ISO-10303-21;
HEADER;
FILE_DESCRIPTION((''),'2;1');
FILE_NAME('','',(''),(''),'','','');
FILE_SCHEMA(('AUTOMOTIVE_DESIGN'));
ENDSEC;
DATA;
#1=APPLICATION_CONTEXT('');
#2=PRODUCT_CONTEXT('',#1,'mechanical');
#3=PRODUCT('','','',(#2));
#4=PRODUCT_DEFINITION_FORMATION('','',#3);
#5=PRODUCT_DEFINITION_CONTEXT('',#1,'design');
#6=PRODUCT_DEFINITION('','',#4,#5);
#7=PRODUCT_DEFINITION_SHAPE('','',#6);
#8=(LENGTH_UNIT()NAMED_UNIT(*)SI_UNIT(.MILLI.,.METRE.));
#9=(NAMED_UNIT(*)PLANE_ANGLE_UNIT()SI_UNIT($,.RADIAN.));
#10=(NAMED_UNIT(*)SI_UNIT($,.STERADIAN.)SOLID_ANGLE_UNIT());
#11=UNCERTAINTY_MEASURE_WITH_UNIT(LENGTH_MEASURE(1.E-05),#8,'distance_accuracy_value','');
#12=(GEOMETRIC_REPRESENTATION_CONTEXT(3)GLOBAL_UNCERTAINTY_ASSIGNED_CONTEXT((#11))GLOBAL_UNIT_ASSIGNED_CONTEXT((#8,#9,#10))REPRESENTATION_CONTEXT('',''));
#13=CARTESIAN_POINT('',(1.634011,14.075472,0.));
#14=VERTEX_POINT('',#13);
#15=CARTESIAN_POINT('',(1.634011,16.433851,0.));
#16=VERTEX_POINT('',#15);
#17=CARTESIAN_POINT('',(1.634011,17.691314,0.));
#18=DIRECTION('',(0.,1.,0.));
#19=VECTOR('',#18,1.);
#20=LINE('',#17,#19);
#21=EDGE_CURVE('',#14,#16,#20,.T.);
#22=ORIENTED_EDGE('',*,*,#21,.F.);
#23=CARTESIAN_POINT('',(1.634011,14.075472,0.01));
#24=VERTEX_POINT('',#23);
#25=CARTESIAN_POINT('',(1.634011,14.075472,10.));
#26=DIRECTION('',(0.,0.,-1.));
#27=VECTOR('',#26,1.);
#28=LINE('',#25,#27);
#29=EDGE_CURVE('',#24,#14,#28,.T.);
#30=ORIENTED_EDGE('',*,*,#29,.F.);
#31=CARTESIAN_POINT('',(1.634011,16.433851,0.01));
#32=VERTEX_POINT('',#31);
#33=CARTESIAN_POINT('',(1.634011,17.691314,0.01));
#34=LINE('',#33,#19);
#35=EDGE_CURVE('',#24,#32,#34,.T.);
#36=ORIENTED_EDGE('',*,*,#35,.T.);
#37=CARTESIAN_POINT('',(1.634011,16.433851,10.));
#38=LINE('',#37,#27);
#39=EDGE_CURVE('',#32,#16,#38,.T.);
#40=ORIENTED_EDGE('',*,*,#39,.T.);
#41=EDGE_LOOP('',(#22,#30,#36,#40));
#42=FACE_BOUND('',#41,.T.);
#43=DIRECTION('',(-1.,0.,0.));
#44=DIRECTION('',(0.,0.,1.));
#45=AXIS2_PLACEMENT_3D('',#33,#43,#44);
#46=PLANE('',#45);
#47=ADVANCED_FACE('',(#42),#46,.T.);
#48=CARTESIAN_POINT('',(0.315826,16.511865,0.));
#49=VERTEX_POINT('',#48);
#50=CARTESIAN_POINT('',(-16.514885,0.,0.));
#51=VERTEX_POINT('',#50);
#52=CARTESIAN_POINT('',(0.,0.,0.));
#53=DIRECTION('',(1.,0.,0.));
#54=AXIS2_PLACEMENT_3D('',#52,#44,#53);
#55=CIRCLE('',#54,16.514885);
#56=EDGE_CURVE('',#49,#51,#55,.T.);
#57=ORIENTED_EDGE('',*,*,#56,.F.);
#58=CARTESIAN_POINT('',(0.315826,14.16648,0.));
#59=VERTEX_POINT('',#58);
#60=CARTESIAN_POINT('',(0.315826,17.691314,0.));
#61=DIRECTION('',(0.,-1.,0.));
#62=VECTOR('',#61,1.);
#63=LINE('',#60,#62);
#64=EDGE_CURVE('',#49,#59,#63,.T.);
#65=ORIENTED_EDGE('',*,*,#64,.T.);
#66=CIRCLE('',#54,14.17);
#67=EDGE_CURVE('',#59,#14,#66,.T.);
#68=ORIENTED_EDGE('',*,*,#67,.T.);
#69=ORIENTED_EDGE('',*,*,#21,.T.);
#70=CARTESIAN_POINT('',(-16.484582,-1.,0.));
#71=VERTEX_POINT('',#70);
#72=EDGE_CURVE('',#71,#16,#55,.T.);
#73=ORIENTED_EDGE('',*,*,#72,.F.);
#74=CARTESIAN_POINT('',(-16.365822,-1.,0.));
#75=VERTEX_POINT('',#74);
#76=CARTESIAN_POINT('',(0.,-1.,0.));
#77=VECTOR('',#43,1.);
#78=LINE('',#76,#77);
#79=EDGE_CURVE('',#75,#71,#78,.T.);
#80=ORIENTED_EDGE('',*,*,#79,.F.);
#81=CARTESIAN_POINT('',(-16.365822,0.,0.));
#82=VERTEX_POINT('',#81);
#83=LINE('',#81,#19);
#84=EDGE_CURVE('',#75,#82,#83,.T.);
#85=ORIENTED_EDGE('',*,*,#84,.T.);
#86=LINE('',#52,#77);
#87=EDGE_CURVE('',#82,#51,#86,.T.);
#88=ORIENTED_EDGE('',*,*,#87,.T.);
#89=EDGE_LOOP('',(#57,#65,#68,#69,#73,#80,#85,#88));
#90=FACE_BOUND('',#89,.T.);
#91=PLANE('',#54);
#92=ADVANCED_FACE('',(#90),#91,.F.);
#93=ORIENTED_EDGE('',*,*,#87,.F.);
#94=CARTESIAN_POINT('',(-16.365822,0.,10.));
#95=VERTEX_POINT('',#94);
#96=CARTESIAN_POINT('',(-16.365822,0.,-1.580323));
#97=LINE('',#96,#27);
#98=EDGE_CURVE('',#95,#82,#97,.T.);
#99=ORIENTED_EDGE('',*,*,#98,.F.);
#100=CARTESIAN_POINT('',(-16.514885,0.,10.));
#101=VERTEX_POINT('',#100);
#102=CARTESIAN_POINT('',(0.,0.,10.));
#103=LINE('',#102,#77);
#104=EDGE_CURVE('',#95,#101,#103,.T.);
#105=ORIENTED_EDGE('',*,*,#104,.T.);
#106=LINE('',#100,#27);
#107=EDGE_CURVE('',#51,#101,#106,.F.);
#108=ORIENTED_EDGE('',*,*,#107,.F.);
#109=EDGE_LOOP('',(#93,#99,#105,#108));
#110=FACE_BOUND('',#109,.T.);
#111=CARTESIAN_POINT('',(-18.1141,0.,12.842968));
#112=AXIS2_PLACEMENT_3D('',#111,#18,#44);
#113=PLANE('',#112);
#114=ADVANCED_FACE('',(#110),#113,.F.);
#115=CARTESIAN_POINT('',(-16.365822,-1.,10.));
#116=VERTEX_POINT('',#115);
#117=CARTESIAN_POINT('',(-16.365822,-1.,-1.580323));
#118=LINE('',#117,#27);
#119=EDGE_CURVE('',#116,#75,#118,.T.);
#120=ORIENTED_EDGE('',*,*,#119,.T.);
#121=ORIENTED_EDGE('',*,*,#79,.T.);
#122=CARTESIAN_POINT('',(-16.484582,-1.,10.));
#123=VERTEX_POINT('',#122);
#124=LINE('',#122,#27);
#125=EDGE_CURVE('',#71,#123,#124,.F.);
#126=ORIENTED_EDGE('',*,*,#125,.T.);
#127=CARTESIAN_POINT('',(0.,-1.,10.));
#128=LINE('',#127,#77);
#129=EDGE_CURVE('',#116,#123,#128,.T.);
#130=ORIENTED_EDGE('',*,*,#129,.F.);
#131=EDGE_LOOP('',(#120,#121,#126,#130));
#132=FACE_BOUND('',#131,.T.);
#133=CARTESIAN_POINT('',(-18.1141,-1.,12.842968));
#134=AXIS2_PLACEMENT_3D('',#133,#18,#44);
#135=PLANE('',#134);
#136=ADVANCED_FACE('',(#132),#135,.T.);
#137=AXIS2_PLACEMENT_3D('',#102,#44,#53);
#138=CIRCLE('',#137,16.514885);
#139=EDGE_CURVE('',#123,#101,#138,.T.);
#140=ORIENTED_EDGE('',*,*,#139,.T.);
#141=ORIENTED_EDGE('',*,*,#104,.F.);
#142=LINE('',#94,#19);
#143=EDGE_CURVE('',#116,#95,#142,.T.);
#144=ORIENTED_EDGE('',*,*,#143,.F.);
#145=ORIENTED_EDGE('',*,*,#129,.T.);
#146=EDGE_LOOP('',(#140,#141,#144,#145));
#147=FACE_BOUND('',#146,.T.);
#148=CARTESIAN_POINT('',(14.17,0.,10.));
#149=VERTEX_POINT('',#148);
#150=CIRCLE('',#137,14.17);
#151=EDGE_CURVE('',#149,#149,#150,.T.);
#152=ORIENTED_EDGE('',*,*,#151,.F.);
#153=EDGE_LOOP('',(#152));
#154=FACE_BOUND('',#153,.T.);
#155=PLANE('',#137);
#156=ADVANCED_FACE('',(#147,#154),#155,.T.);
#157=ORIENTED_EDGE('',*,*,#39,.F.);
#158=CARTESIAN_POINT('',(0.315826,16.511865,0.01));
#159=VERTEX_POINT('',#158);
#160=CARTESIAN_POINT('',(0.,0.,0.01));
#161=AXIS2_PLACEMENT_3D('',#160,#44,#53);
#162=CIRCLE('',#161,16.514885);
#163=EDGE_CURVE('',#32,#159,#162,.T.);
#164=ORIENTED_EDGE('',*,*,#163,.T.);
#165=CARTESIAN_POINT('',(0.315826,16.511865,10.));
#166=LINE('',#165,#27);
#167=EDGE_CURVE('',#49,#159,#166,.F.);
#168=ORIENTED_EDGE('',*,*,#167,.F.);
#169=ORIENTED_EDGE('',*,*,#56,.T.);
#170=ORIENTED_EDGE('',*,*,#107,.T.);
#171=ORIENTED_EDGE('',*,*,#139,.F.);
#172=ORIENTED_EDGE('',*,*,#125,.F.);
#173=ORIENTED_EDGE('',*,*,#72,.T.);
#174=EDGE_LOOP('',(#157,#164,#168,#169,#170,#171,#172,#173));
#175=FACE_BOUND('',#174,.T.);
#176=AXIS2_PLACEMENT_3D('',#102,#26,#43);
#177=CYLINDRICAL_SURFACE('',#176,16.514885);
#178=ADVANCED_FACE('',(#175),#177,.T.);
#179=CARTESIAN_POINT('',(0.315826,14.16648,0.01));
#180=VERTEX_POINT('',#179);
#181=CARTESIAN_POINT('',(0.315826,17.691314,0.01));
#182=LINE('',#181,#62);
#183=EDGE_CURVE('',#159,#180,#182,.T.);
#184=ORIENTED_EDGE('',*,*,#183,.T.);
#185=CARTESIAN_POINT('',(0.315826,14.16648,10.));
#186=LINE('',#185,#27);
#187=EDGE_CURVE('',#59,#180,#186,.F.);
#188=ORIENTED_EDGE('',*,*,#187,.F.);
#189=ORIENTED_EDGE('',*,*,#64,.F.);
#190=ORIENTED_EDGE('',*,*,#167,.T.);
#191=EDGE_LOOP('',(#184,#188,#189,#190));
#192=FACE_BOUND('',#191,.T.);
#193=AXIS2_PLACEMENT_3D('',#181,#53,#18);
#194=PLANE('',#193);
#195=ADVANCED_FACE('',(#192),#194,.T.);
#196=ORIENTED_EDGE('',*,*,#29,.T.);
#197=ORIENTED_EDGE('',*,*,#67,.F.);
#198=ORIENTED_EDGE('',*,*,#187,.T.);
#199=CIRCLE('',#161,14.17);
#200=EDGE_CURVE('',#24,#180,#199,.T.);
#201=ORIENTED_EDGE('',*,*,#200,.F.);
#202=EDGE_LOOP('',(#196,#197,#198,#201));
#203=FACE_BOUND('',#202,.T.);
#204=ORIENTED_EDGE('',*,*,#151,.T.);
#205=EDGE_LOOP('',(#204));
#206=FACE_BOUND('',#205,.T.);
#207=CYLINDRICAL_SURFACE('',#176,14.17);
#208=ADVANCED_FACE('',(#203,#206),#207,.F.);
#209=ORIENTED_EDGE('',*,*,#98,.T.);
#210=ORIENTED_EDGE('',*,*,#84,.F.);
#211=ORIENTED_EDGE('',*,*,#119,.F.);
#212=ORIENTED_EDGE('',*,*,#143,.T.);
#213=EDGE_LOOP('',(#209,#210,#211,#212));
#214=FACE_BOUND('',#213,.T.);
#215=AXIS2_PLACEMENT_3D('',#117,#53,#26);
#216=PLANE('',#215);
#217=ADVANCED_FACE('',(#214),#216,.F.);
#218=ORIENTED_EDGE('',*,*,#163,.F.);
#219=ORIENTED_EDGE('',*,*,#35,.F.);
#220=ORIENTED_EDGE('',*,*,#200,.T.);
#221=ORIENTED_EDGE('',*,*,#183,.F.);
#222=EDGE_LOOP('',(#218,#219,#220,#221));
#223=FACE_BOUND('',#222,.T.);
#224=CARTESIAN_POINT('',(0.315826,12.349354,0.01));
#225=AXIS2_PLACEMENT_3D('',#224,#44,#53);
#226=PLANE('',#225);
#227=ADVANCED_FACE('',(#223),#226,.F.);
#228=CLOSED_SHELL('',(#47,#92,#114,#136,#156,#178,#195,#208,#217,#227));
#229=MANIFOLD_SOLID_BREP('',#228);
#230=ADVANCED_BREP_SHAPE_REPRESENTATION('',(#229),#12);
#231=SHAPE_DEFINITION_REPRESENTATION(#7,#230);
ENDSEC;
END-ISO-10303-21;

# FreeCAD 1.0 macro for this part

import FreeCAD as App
import Part
import Sketcher
from FreeCAD import Vector


def add_polygon(sketch, points):
    """Adds a closed chain of lines whose ends are joined by coincident constraints."""
    first, n = sketch.GeometryCount, len(points)
    for a, b in zip(points, points[1:] + points[:1]):
        sketch.addGeometry(Part.LineSegment(App.Vector(*a, 0), App.Vector(*b, 0)), False)
    for i in range(n):
        sketch.addConstraint(Sketcher.Constraint("Coincident", first + i, 2, first + (i + 1) % n, 1))

doc = App.newDocument("Part")
params = doc.addObject("Spreadsheet::Sheet", "Params")
for row, (alias, value) in enumerate([
    ("sketch1_diameter", "28.34 mm"),
    ("pad1_length", "10 mm"),
    ("pocket1_length", "1 mm"),
    ("pocket2_length", "0.01 mm"),
], start=1):
    params.set(f"A{row}", alias)
    params.set(f"B{row}", "=" + value)
    params.setAlias(f"B{row}", alias)

body = doc.addObject("PartDesign::Body", "Body")

sketch1 = doc.addObject("Sketcher::SketchObject", "Sketch")
body.addObject(sketch1)
sketch1.AttachmentSupport = (doc.XY_Plane, [""])
sketch1.MapMode = "FlatFace"
sketch1.addGeometry([
    Part.Circle(Vector(0, 0, 0), Vector(0, 0, 1), 17),
    Part.Circle(Vector(0, 0, 0), Vector(0, 0, 1), 14),
], False)
sketch1.addConstraint([
    Sketcher.Constraint("Coincident", 0, 3, -1, 1),
    Sketcher.Constraint("Coincident", 1, 3, -1, 1),
    Sketcher.Constraint("Diameter", 1, 28.34),
    Sketcher.Constraint("Diameter", 0, 33.029771),
])
sketch1.setExpression("Constraints[2]", "Params.sketch1_diameter")
pad1 = doc.addObject("PartDesign::Pad", "Pad")
body.addObject(pad1)
pad1.Profile = sketch1
pad1.setExpression("Length", "Params.pad1_length")

sketch2 = doc.addObject("Sketcher::SketchObject", "Sketch001")
body.addObject(sketch2)
sketch2.AttachmentSupport = (doc.XZ_Plane, [""])
sketch2.MapMode = "FlatFace"
add_polygon(sketch2, [(-18.1, -1.6), (-18.1, 12.8), (-16.4, 12.8), (-16.4, -1.6)])
sketch2.addConstraint([
    Sketcher.Constraint("Vertical", 0),
    Sketcher.Constraint("Horizontal", 1),
    Sketcher.Constraint("Vertical", 2),
    Sketcher.Constraint("Horizontal", 3),
    Sketcher.Constraint("DistanceY", 0, 1, 0, 2, 14.423291),
    Sketcher.Constraint("DistanceX", 0, 2, -1, 1, 18.1141),
    Sketcher.Constraint("DistanceX", 1, 1, 1, 2, 1.748278),
    Sketcher.Constraint("DistanceY", -1, 1, 0, 2, 12.842968),
])
pocket1 = doc.addObject("PartDesign::Pocket", "Pocket")
body.addObject(pocket1)
pocket1.Profile = sketch2
pocket1.setExpression("Length", "Params.pocket1_length")
pocket1.Reversed = True

sketch3 = doc.addObject("Sketcher::SketchObject", "Sketch002")
body.addObject(sketch3)
sketch3.AttachmentSupport = (doc.XY_Plane, [""])
sketch3.MapMode = "FlatFace"
add_polygon(sketch3, [(0.3, 17.7), (0.3, 12.3), (1.6, 12.3), (1.6, 17.7)])
sketch3.addConstraint([
    Sketcher.Constraint("Vertical", 0),
    Sketcher.Constraint("Horizontal", 1),
    Sketcher.Constraint("Vertical", 2),
    Sketcher.Constraint("Horizontal", 3),
    Sketcher.Constraint("DistanceY", 0, 2, 0, 1, 5.34196),
    Sketcher.Constraint("DistanceX", 1, 1, 1, 2, 1.318185),
    Sketcher.Constraint("DistanceX", -1, 1, 1, 2, 1.634011),
    Sketcher.Constraint("DistanceY", -1, 1, 0, 2, 12.349354),
])
pocket2 = doc.addObject("PartDesign::Pocket", "Pocket001")
body.addObject(pocket2)
pocket2.Profile = sketch3
pocket2.setExpression("Length", "Params.pocket2_length")
pocket2.Reversed = True

doc.recompute()
